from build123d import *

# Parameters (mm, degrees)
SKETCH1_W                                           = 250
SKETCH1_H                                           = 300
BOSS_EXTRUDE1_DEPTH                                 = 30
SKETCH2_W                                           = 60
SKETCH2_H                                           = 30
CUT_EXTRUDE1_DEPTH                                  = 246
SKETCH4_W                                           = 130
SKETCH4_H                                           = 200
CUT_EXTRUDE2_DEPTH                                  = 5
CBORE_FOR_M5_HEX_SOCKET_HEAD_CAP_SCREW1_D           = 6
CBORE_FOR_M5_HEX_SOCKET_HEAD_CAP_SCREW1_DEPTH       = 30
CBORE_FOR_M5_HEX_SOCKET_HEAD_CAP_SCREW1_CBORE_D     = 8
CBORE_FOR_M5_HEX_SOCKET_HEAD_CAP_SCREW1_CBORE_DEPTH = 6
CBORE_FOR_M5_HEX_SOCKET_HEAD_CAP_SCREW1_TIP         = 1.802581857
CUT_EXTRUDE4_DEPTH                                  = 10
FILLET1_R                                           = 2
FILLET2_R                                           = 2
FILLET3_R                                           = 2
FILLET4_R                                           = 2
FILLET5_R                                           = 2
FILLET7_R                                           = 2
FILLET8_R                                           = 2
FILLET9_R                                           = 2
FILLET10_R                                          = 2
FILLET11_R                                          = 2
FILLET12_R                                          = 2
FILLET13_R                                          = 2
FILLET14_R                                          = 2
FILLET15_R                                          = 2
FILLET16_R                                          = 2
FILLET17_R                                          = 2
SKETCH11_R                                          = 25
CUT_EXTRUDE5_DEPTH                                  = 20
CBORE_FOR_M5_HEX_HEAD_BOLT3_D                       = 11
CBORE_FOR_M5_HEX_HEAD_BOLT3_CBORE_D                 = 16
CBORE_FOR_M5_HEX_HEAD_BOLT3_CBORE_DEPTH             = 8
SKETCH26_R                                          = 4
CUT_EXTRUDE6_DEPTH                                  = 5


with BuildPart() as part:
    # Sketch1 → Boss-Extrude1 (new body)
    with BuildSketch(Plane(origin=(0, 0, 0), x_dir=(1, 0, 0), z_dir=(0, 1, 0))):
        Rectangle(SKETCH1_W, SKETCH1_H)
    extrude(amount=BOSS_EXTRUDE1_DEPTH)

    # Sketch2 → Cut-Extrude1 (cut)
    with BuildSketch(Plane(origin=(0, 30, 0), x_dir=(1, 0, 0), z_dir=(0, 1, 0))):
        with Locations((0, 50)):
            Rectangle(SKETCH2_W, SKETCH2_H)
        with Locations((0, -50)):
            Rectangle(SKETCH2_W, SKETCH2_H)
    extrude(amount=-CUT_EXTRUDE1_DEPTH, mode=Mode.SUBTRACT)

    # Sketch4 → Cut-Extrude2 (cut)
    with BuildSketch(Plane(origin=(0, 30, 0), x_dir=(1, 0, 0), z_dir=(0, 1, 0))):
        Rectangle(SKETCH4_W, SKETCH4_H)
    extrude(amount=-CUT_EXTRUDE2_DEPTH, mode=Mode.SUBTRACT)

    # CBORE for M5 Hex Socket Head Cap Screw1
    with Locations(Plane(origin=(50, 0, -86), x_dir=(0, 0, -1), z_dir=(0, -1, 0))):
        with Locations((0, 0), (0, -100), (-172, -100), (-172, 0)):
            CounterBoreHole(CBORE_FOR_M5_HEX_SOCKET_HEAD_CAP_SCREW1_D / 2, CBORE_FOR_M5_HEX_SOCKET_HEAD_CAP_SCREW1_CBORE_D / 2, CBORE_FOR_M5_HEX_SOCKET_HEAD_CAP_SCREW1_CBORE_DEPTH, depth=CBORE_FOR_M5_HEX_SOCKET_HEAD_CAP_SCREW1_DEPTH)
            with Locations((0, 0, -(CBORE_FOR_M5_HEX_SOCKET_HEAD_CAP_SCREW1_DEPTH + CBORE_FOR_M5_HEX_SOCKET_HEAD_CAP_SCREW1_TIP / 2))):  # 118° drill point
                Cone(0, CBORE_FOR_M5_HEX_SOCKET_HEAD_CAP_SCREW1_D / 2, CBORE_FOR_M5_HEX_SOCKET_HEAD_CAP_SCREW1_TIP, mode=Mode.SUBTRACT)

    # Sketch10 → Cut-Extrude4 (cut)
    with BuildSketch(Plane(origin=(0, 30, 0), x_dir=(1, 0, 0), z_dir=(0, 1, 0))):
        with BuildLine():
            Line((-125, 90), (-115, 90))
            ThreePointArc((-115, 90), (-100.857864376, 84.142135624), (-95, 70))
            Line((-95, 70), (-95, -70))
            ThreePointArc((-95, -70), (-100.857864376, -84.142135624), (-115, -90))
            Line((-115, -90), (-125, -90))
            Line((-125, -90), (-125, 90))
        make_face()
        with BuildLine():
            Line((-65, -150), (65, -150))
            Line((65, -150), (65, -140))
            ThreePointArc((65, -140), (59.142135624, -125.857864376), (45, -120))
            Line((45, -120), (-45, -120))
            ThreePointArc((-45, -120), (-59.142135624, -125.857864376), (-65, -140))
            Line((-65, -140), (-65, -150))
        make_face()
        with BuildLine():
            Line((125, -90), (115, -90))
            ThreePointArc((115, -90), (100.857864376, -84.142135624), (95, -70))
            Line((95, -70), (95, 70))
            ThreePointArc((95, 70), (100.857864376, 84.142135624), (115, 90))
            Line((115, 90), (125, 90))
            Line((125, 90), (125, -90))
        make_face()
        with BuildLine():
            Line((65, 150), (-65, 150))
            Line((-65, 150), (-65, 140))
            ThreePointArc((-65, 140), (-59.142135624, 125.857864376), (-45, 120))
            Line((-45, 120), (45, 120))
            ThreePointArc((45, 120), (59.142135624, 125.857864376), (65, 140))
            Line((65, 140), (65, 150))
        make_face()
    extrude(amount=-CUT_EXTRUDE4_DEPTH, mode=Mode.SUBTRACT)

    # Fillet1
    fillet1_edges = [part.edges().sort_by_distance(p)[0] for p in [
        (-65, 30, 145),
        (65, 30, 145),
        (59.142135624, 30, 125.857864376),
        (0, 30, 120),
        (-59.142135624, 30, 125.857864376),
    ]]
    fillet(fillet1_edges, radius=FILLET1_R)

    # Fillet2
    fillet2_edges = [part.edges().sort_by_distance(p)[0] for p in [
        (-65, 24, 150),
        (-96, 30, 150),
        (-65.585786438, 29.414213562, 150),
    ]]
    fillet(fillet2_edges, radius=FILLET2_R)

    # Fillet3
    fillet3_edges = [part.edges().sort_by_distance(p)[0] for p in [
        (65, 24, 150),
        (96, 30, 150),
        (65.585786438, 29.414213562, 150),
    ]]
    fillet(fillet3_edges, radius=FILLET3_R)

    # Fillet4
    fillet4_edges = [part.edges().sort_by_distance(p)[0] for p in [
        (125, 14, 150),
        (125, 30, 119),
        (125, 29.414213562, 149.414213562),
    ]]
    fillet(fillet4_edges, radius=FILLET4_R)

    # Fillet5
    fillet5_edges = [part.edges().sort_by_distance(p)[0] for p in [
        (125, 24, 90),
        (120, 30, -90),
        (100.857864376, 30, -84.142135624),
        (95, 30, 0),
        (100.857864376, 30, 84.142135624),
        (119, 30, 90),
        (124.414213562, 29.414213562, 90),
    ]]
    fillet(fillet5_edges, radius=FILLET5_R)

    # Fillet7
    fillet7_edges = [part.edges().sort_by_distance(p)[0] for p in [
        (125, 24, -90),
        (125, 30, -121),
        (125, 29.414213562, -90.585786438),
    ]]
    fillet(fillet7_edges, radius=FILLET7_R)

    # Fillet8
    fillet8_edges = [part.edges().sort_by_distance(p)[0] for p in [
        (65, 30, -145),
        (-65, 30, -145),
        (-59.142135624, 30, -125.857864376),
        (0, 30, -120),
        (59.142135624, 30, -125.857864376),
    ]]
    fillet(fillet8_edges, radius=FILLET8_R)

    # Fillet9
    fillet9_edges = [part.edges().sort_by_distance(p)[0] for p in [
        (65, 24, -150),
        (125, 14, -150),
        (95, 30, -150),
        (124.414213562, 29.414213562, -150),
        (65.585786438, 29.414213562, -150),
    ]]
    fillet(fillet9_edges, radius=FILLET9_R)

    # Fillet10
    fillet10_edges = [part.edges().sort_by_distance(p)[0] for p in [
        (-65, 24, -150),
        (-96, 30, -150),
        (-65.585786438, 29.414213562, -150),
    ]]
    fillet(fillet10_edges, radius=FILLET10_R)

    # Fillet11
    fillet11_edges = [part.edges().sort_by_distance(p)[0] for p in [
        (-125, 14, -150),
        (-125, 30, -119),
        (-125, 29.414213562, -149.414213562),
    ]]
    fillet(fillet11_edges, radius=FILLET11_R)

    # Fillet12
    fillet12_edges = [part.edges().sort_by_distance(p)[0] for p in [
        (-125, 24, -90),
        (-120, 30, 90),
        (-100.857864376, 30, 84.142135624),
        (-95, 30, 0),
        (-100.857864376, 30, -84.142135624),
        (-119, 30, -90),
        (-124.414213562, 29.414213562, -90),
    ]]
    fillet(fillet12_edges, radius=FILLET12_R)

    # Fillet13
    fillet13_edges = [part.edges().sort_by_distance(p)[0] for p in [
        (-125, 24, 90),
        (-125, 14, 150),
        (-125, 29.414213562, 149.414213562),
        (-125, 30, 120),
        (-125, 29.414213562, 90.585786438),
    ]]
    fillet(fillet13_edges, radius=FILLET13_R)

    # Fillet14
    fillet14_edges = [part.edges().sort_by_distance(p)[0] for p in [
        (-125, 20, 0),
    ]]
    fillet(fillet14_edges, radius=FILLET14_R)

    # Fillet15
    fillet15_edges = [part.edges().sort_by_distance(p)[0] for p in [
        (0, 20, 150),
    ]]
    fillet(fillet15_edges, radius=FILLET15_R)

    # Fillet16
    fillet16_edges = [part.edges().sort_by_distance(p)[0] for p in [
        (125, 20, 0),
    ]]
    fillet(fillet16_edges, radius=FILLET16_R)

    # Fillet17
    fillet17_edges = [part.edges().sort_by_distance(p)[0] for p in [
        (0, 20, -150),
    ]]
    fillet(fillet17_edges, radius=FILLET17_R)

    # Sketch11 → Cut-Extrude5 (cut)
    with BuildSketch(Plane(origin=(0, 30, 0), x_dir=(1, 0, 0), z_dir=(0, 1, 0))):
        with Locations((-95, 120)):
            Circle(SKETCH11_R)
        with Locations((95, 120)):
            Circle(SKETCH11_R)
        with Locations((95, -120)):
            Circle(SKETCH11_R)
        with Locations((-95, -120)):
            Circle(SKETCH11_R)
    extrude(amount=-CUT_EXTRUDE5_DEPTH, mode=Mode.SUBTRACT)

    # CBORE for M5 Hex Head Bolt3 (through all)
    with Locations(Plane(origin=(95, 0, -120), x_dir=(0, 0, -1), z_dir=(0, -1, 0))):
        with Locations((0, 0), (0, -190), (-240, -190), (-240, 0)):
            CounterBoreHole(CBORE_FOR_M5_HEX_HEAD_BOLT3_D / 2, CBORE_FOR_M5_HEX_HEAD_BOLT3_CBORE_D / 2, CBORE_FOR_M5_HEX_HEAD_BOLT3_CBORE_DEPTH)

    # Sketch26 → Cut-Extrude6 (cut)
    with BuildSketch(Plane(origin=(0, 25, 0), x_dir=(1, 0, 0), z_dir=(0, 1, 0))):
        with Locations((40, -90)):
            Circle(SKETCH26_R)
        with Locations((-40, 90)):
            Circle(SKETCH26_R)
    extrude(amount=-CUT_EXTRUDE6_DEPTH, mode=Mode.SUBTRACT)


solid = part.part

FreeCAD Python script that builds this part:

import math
import FreeCAD as App
import Part
import Sketcher

V = App.Vector
Q = App.Units.Quantity


def edges_at(feature, points):
    """Names of the edges that pass closest to the given points."""
    edges = feature.Shape.Edges
    near = lambda p: min(range(len(edges)), key=lambda i: edges[i].distToShape(Part.Vertex(*p))[0])
    return sorted({f"Edge{near(p) + 1}" for p in points})


def add_polygon(sketch, points):
    """Adds a closed chain of lines whose ends are joined by coincident constraints."""
    first, n = sketch.GeometryCount, len(points)
    for a, b in zip(points, points[1:] + points[:1]):
        sketch.addGeometry(Part.LineSegment(App.Vector(*a, 0), App.Vector(*b, 0)), False)
    for i in range(n):
        sketch.addConstraint(Sketcher.Constraint("Coincident", first + i, 2, first + (i + 1) % n, 1))

doc = App.newDocument("Part")
body = doc.addObject("PartDesign::Body", "Body")

# Sketch on XZ plane
sketch1 = doc.addObject("Sketcher::SketchObject", "Sketch")
body.addObject(sketch1)
sketch1.AttachmentSupport = (doc.XZ_Plane, [""])
sketch1.MapMode = "FlatFace"
add_polygon(sketch1, [(-125, -150), (-125, 150), (125, 150), (125, -150)])  # lines 0-3
sketch1.addConstraint([
    Sketcher.Constraint("Vertical", 0),
    Sketcher.Constraint("Horizontal", 1),
    Sketcher.Constraint("Vertical", 2),
    Sketcher.Constraint("Horizontal", 3),
    Sketcher.Constraint("Symmetric", 0, 2, 2, 2, -1, 1),
    Sketcher.Constraint("DistanceX", 1, 1, 1, 2, Q("250 mm")),
    Sketcher.Constraint("DistanceY", 0, 1, 0, 2, Q("300 mm")),
])
pad1 = doc.addObject("PartDesign::Pad", "Pad")
body.addObject(pad1)
pad1.Profile = sketch1
pad1.Length = 30
pad1.Reversed = True

# Sketch on XZ plane
sketch2 = doc.addObject("Sketcher::SketchObject", "Sketch001")
body.addObject(sketch2)
sketch2.AttachmentSupport = (doc.XZ_Plane, [""])
sketch2.MapMode = "FlatFace"
sketch2.AttachmentOffset = App.Placement(V(0, 0, -30), App.Rotation())
add_polygon(sketch2, [(-30, -65), (-30, -35), (30, -35), (30, -65)])  # lines 0-3
add_polygon(sketch2, [(-30, 35), (-30, 65), (30, 65), (30, 35)])  # lines 4-7
sketch2.addConstraint([
    Sketcher.Constraint("Vertical", 0),
    Sketcher.Constraint("Horizontal", 1),
    Sketcher.Constraint("Vertical", 2),
    Sketcher.Constraint("Horizontal", 3),
    Sketcher.Constraint("Vertical", 4),
    Sketcher.Constraint("Horizontal", 5),
    Sketcher.Constraint("Vertical", 6),
    Sketcher.Constraint("Horizontal", 7),
    Sketcher.Constraint("Symmetric", 2, 2, 4, 2, -1, 1),
    Sketcher.Constraint("Symmetric", 0, 2, 6, 2, -1, 1),
    Sketcher.Constraint("Vertical", 3, 2, 4, 2),
    Sketcher.Constraint("DistanceX", 1, 1, 1, 2, Q("60 mm")),
    Sketcher.Constraint("DistanceY", 0, 1, 0, 2, Q("30 mm")),
    Sketcher.Constraint("DistanceY", 0, 2, -1, 1, Q("35 mm")),
])
pocket1 = doc.addObject("PartDesign::Pocket", "Pocket")
body.addObject(pocket1)
pocket1.Profile = sketch2
pocket1.Length = 246
pocket1.Reversed = True

# Sketch on XZ plane
sketch3 = doc.addObject("Sketcher::SketchObject", "Sketch002")
body.addObject(sketch3)
sketch3.AttachmentSupport = (doc.XZ_Plane, [""])
sketch3.MapMode = "FlatFace"
sketch3.AttachmentOffset = App.Placement(V(0, 0, -30), App.Rotation())
add_polygon(sketch3, [(-65, -100), (-65, 100), (65, 100), (65, -100)])  # lines 0-3
sketch3.addConstraint([
    Sketcher.Constraint("Vertical", 0),
    Sketcher.Constraint("Horizontal", 1),
    Sketcher.Constraint("Vertical", 2),
    Sketcher.Constraint("Horizontal", 3),
    Sketcher.Constraint("Symmetric", 0, 2, 2, 2, -1, 1),
    Sketcher.Constraint("DistanceX", 1, 1, 1, 2, Q("130 mm")),
    Sketcher.Constraint("DistanceY", 0, 1, 0, 2, Q("200 mm")),
])
pocket2 = doc.addObject("PartDesign::Pocket", "Pocket001")
body.addObject(pocket2)
pocket2.Profile = sketch3
pocket2.Length = 5
pocket2.Reversed = True

# Sketch on XZ plane
sketch4 = doc.addObject("Sketcher::SketchObject", "Sketch003")
body.addObject(sketch4)
sketch4.AttachmentSupport = (doc.XZ_Plane, [""])
sketch4.MapMode = "FlatFace"
sketch4.addGeometry([
    Part.Circle(V(50, -86, 0), V(0, 0, 1), 3),
    Part.Circle(V(-50, -86, 0), V(0, 0, 1), 3),
    Part.Circle(V(-50, 86, 0), V(0, 0, 1), 3),
    Part.Circle(V(50, 86, 0), V(0, 0, 1), 3),
], False)
sketch4.addConstraint([
    Sketcher.Constraint("Equal", 0, 1),
    Sketcher.Constraint("Equal", 1, 2),
    Sketcher.Constraint("Equal", 2, 3),
    Sketcher.Constraint("Symmetric", 0, 3, 2, 3, -1, 1),
    Sketcher.Constraint("Symmetric", 1, 3, 3, 3, -1, 1),
    Sketcher.Constraint("Symmetric", 0, 3, 1, 3, -2),
    Sketcher.Constraint("Diameter", 0, Q("6 mm")),
    Sketcher.Constraint("DistanceX", -1, 1, 0, 3, Q("50 mm")),
    Sketcher.Constraint("DistanceY", 0, 3, -1, 1, Q("86 mm")),
])
doc.recompute()
hole = doc.addObject("PartDesign::Hole", "Hole")
body.addObject(hole)
hole.Profile = sketch4
hole.ThreadType = "None"
hole.Diameter = 6
hole.DepthType = "Dimension"
hole.Depth = 30
hole.DrillPoint = "Angled"
hole.DrillPointAngle = 118
hole.HoleCutType = "Counterbore"
hole.HoleCutDiameter = 8
hole.HoleCutDepth = 6

# Sketch on XZ plane
sketch5 = doc.addObject("Sketcher::SketchObject", "Sketch004")
body.addObject(sketch5)
sketch5.AttachmentSupport = (doc.XZ_Plane, [""])
sketch5.MapMode = "FlatFace"
sketch5.AttachmentOffset = App.Placement(V(0, 0, -30), App.Rotation())
sketch5.addGeometry([
    Part.LineSegment(V(-115, -90, 0), V(-125, -90, 0)),  # 0
    Part.LineSegment(V(-125, -90, 0), V(-125, 90, 0)),  # 1
    Part.LineSegment(V(-125, 90, 0), V(-115, 90, 0)),  # 2
    Part.ArcOfCircle(Part.Circle(V(-115, 70, 0), V(0, 0, 1), 20), math.radians(0), math.radians(90)),  # 3
    Part.LineSegment(V(-95, 70, 0), V(-95, -70, 0)),  # 4
    Part.ArcOfCircle(Part.Circle(V(-115, -70, 0), V(0, 0, 1), 20), math.radians(-90), math.radians(0)),  # 5
    Part.LineSegment(V(-65, 150, 0), V(65, 150, 0)),  # 6
    Part.LineSegment(V(65, 150, 0), V(65, 140, 0)),  # 7
    Part.ArcOfCircle(Part.Circle(V(45, 140, 0), V(0, 0, 1), 20), math.radians(-90), math.radians(0)),  # 8
    Part.LineSegment(V(45, 120, 0), V(-45, 120, 0)),  # 9
    Part.ArcOfCircle(Part.Circle(V(-45, 140, 0), V(0, 0, 1), 20), math.radians(180), math.radians(270)),  # 10
    Part.LineSegment(V(-65, 140, 0), V(-65, 150, 0)),  # 11
    Part.LineSegment(V(115, 90, 0), V(125, 90, 0)),  # 12
    Part.LineSegment(V(125, 90, 0), V(125, -90, 0)),  # 13
    Part.LineSegment(V(125, -90, 0), V(115, -90, 0)),  # 14
    Part.ArcOfCircle(Part.Circle(V(115, -70, 0), V(0, 0, 1), 20), math.radians(180), math.radians(270)),  # 15
    Part.LineSegment(V(95, -70, 0), V(95, 70, 0)),  # 16
    Part.ArcOfCircle(Part.Circle(V(115, 70, 0), V(0, 0, 1), 20), math.radians(90), math.radians(180)),  # 17
    Part.LineSegment(V(65, -150, 0), V(-65, -150, 0)),  # 18
    Part.LineSegment(V(-65, -150, 0), V(-65, -140, 0)),  # 19
    Part.ArcOfCircle(Part.Circle(V(-45, -140, 0), V(0, 0, 1), 20), math.radians(90), math.radians(180)),  # 20
    Part.LineSegment(V(-45, -120, 0), V(45, -120, 0)),  # 21
    Part.ArcOfCircle(Part.Circle(V(45, -140, 0), V(0, 0, 1), 20), math.radians(0), math.radians(90)),  # 22
    Part.LineSegment(V(65, -140, 0), V(65, -150, 0)),  # 23
], False)
sketch5.addConstraint([
    Sketcher.Constraint("Coincident", 0, 2, 1, 1),
    Sketcher.Constraint("Coincident", 1, 2, 2, 1),
    Sketcher.Constraint("Tangent", 2, 2, 3, 2),
    Sketcher.Constraint("Tangent", 3, 1, 4, 1),
    Sketcher.Constraint("Tangent", 4, 2, 5, 2),
    Sketcher.Constraint("Tangent", 5, 1, 0, 1),
    Sketcher.Constraint("Coincident", 6, 2, 7, 1),
    Sketcher.Constraint("Tangent", 7, 2, 8, 2),
    Sketcher.Constraint("Tangent", 8, 1, 9, 1),
    Sketcher.Constraint("Tangent", 9, 2, 10, 2),
    Sketcher.Constraint("Tangent", 10, 1, 11, 1),
    Sketcher.Constraint("Coincident", 11, 2, 6, 1),
    Sketcher.Constraint("Coincident", 12, 2, 13, 1),
    Sketcher.Constraint("Coincident", 13, 2, 14, 1),
    Sketcher.Constraint("Tangent", 14, 2, 15, 2),
    Sketcher.Constraint("Tangent", 15, 1, 16, 1),
    Sketcher.Constraint("Tangent", 16, 2, 17, 2),
    Sketcher.Constraint("Tangent", 17, 1, 12, 1),
    Sketcher.Constraint("Coincident", 18, 2, 19, 1),
    Sketcher.Constraint("Tangent", 19, 2, 20, 2),
    Sketcher.Constraint("Tangent", 20, 1, 21, 1),
    Sketcher.Constraint("Tangent", 21, 2, 22, 2),
    Sketcher.Constraint("Tangent", 22, 1, 23, 1),
    Sketcher.Constraint("Coincident", 23, 2, 18, 1),
    Sketcher.Constraint("Horizontal", 0),
    Sketcher.Constraint("Vertical", 1),
    Sketcher.Constraint("Horizontal", 2),
    Sketcher.Constraint("Vertical", 4),
    Sketcher.Constraint("Horizontal", 6),
    Sketcher.Constraint("Vertical", 7),
    Sketcher.Constraint("Horizontal", 9),
    Sketcher.Constraint("Vertical", 11),
    Sketcher.Constraint("Horizontal", 12),
    Sketcher.Constraint("Vertical", 13),
    Sketcher.Constraint("Horizontal", 14),
    Sketcher.Constraint("Vertical", 16),
    Sketcher.Constraint("Horizontal", 18),
    Sketcher.Constraint("Vertical", 19),
    Sketcher.Constraint("Horizontal", 21),
    Sketcher.Constraint("Vertical", 23),
    Sketcher.Constraint("Equal", 3, 5),
    Sketcher.Constraint("Equal", 5, 8),
    Sketcher.Constraint("Equal", 8, 10),
    Sketcher.Constraint("Equal", 10, 15),
    Sketcher.Constraint("Equal", 15, 17),
    Sketcher.Constraint("Equal", 17, 20),
    Sketcher.Constraint("Equal", 20, 22),
    Sketcher.Constraint("Symmetric", 3, 3, 15, 3, -1, 1),
    Sketcher.Constraint("Symmetric", 8, 3, 20, 3, -1, 1),
    Sketcher.Constraint("Symmetric", 0, 2, 12, 2, -1, 1),
    Sketcher.Constraint("Symmetric", 11, 2, 23, 2, -1, 1),
    Sketcher.Constraint("Horizontal", 5, 3, 15, 3),
    Sketcher.Constraint("Vertical", 10, 3, 20, 3),
    Sketcher.Constraint("Equal", 14, 7),
    Sketcher.Constraint("Radius", 3, Q("20 mm")),
    Sketcher.Constraint("DistanceX", 0, 2, 0, 1, Q("10 mm")),
    Sketcher.Constraint("DistanceX", 6, 1, 6, 2, Q("130 mm")),
    Sketcher.Constraint("DistanceY", 1, 1, 1, 2, Q("180 mm")),
    Sketcher.Constraint("DistanceX", 3, 3, -1, 1, Q("115 mm")),
    Sketcher.Constraint("DistanceY", -1, 1, 8, 3, Q("140 mm")),
])
pocket3 = doc.addObject("PartDesign::Pocket", "Pocket002")
body.addObject(pocket3)
pocket3.Profile = sketch5
pocket3.Length = 10
pocket3.Reversed = True
doc.recompute()

fillet = doc.addObject("PartDesign::Fillet", "Fillet")
body.addObject(fillet)
fillet.Base = (pocket3, edges_at(pocket3, [
    (-65, 30, 145),
    (65, 30, 145),
    (59.142, 30, 125.858),
    (0, 30, 120),
    (-59.142, 30, 125.858),
]))
fillet.Radius = 2
doc.recompute()

fillet2 = doc.addObject("PartDesign::Fillet", "Fillet001")
body.addObject(fillet2)
fillet2.Base = (fillet, edges_at(fillet, [(-65, 24, 150), (-96, 30, 150), (-65.586, 29.414, 150)]))
fillet2.Radius = 2
doc.recompute()

fillet3 = doc.addObject("PartDesign::Fillet", "Fillet002")
body.addObject(fillet3)
fillet3.Base = (fillet2, edges_at(fillet2, [(65, 24, 150), (96, 30, 150), (65.586, 29.414, 150)]))
fillet3.Radius = 2
doc.recompute()

fillet4 = doc.addObject("PartDesign::Fillet", "Fillet003")
body.addObject(fillet4)
fillet4.Base = (fillet3, edges_at(fillet3, [(125, 14, 150), (125, 30, 119), (125, 29.414, 149.414)]))
fillet4.Radius = 2
doc.recompute()

fillet5 = doc.addObject("PartDesign::Fillet", "Fillet004")
body.addObject(fillet5)
fillet5.Base = (fillet4, edges_at(fillet4, [
    (125, 24, 90),
    (120, 30, -90),
    (100.858, 30, -84.142),
    (95, 30, 0),
    (100.858, 30, 84.142),
    (119, 30, 90),
    (124.414, 29.414, 90),
]))
fillet5.Radius = 2
doc.recompute()

fillet6 = doc.addObject("PartDesign::Fillet", "Fillet005")
body.addObject(fillet6)
fillet6.Base = (fillet5, edges_at(fillet5, [(125, 24, -90), (125, 30, -121), (125, 29.414, -90.586)]))
fillet6.Radius = 2
doc.recompute()

fillet7 = doc.addObject("PartDesign::Fillet", "Fillet006")
body.addObject(fillet7)
fillet7.Base = (fillet6, edges_at(fillet6, [
    (65, 30, -145),
    (-65, 30, -145),
    (-59.142, 30, -125.858),
    (0, 30, -120),
    (59.142, 30, -125.858),
]))
fillet7.Radius = 2
doc.recompute()

fillet8 = doc.addObject("PartDesign::Fillet", "Fillet007")
body.addObject(fillet8)
fillet8.Base = (fillet7, edges_at(fillet7, [
    (65, 24, -150),
    (125, 14, -150),
    (95, 30, -150),
    (124.414, 29.414, -150),
    (65.586, 29.414, -150),
]))
fillet8.Radius = 2
doc.recompute()

fillet9 = doc.addObject("PartDesign::Fillet", "Fillet008")
body.addObject(fillet9)
fillet9.Base = (fillet8, edges_at(fillet8, [(-65, 24, -150), (-96, 30, -150), (-65.586, 29.414, -150)]))
fillet9.Radius = 2
doc.recompute()

fillet10 = doc.addObject("PartDesign::Fillet", "Fillet009")
body.addObject(fillet10)
fillet10.Base = (fillet9, edges_at(fillet9, [(-125, 14, -150), (-125, 30, -119), (-125, 29.414, -149.414)]))
fillet10.Radius = 2
doc.recompute()

fillet11 = doc.addObject("PartDesign::Fillet", "Fillet010")
body.addObject(fillet11)
fillet11.Base = (fillet10, edges_at(fillet10, [
    (-125, 24, -90),
    (-120, 30, 90),
    (-100.858, 30, 84.142),
    (-95, 30, 0),
    (-100.858, 30, -84.142),
    (-119, 30, -90),
    (-124.414, 29.414, -90),
]))
fillet11.Radius = 2
doc.recompute()

fillet12 = doc.addObject("PartDesign::Fillet", "Fillet011")
body.addObject(fillet12)
fillet12.Base = (fillet11, edges_at(fillet11, [
    (-125, 24, 90),
    (-125, 14, 150),
    (-125, 29.414, 149.414),
    (-125, 30, 120),
    (-125, 29.414, 90.586),
]))
fillet12.Radius = 2
doc.recompute()

fillet13 = doc.addObject("PartDesign::Fillet", "Fillet012")
body.addObject(fillet13)
fillet13.Base = (fillet12, edges_at(fillet12, [(-125, 20, 0)]))
fillet13.Radius = 2
doc.recompute()

fillet14 = doc.addObject("PartDesign::Fillet", "Fillet013")
body.addObject(fillet14)
fillet14.Base = (fillet13, edges_at(fillet13, [(0, 20, 150)]))
fillet14.Radius = 2
doc.recompute()

fillet15 = doc.addObject("PartDesign::Fillet", "Fillet014")
body.addObject(fillet15)
fillet15.Base = (fillet14, edges_at(fillet14, [(125, 20, 0)]))
fillet15.Radius = 2
doc.recompute()

fillet16 = doc.addObject("PartDesign::Fillet", "Fillet015")
body.addObject(fillet16)
fillet16.Base = (fillet15, edges_at(fillet15, [(0, 20, -150)]))
fillet16.Radius = 2

# Sketch on XZ plane
sketch6 = doc.addObject("Sketcher::SketchObject", "Sketch005")
body.addObject(sketch6)
sketch6.AttachmentSupport = (doc.XZ_Plane, [""])
sketch6.MapMode = "FlatFace"
sketch6.AttachmentOffset = App.Placement(V(0, 0, -30), App.Rotation())
sketch6.addGeometry([
    Part.Circle(V(-95, -120, 0), V(0, 0, 1), 25),
    Part.Circle(V(95, -120, 0), V(0, 0, 1), 25),
    Part.Circle(V(95, 120, 0), V(0, 0, 1), 25),
    Part.Circle(V(-95, 120, 0), V(0, 0, 1), 25),
], False)
sketch6.addConstraint([
    Sketcher.Constraint("Equal", 0, 1),
    Sketcher.Constraint("Equal", 1, 2),
    Sketcher.Constraint("Equal", 2, 3),
    Sketcher.Constraint("Symmetric", 0, 3, 2, 3, -1, 1),
    Sketcher.Constraint("Symmetric", 1, 3, 3, 3, -1, 1),
    Sketcher.Constraint("Symmetric", 0, 3, 1, 3, -2),
    Sketcher.Constraint("Diameter", 0, Q("50 mm")),
    Sketcher.Constraint("DistanceX", 0, 3, -1, 1, Q("95 mm")),
    Sketcher.Constraint("DistanceY", 0, 3, -1, 1, Q("120 mm")),
])
pocket4 = doc.addObject("PartDesign::Pocket", "Pocket003")
body.addObject(pocket4)
pocket4.Profile = sketch6
pocket4.Length = 20
pocket4.Reversed = True

# Sketch on XZ plane
sketch7 = doc.addObject("Sketcher::SketchObject", "Sketch006")
body.addObject(sketch7)
sketch7.AttachmentSupport = (doc.XZ_Plane, [""])
sketch7.MapMode = "FlatFace"
sketch7.addGeometry([
    Part.Circle(V(95, -120, 0), V(0, 0, 1), 6),
    Part.Circle(V(-95, -120, 0), V(0, 0, 1), 6),
    Part.Circle(V(-95, 120, 0), V(0, 0, 1), 6),
    Part.Circle(V(95, 120, 0), V(0, 0, 1), 6),
], False)
sketch7.addConstraint([
    Sketcher.Constraint("Equal", 0, 1),
    Sketcher.Constraint("Equal", 1, 2),
    Sketcher.Constraint("Equal", 2, 3),
    Sketcher.Constraint("Symmetric", 0, 3, 2, 3, -1, 1),
    Sketcher.Constraint("Symmetric", 1, 3, 3, 3, -1, 1),
    Sketcher.Constraint("Symmetric", 0, 3, 1, 3, -2),
    Sketcher.Constraint("Diameter", 0, Q("11 mm")),
    Sketcher.Constraint("DistanceX", -1, 1, 0, 3, Q("95 mm")),
    Sketcher.Constraint("DistanceY", 0, 3, -1, 1, Q("120 mm")),
])
doc.recompute()
hole2 = doc.addObject("PartDesign::Hole", "Hole001")
body.addObject(hole2)
hole2.Profile = sketch7
hole2.ThreadType = "None"
hole2.Diameter = 11
hole2.DepthType = "ThroughAll"
hole2.HoleCutType = "Counterbore"
hole2.HoleCutDiameter = 16
hole2.HoleCutDepth = 8

# Sketch on XZ plane
sketch8 = doc.addObject("Sketcher::SketchObject", "Sketch007")
body.addObject(sketch8)
sketch8.AttachmentSupport = (doc.XZ_Plane, [""])
sketch8.MapMode = "FlatFace"
sketch8.AttachmentOffset = App.Placement(V(0, 0, -25), App.Rotation())
sketch8.addGeometry([
    Part.Circle(V(40, 90, 0), V(0, 0, 1), 4),
    Part.Circle(V(-40, -90, 0), V(0, 0, 1), 4),
], False)
sketch8.addConstraint([
    Sketcher.Constraint("Equal", 0, 1),
    Sketcher.Constraint("Symmetric", 0, 3, 1, 3, -1, 1),
    Sketcher.Constraint("Diameter", 0, Q("8 mm")),
    Sketcher.Constraint("DistanceX", -1, 1, 0, 3, Q("40 mm")),
    Sketcher.Constraint("DistanceY", -1, 1, 0, 3, Q("90 mm")),
])
pocket5 = doc.addObject("PartDesign::Pocket", "Pocket004")
body.addObject(pocket5)
pocket5.Profile = sketch8
pocket5.Length = 5
pocket5.Reversed = True

doc.recompute()
